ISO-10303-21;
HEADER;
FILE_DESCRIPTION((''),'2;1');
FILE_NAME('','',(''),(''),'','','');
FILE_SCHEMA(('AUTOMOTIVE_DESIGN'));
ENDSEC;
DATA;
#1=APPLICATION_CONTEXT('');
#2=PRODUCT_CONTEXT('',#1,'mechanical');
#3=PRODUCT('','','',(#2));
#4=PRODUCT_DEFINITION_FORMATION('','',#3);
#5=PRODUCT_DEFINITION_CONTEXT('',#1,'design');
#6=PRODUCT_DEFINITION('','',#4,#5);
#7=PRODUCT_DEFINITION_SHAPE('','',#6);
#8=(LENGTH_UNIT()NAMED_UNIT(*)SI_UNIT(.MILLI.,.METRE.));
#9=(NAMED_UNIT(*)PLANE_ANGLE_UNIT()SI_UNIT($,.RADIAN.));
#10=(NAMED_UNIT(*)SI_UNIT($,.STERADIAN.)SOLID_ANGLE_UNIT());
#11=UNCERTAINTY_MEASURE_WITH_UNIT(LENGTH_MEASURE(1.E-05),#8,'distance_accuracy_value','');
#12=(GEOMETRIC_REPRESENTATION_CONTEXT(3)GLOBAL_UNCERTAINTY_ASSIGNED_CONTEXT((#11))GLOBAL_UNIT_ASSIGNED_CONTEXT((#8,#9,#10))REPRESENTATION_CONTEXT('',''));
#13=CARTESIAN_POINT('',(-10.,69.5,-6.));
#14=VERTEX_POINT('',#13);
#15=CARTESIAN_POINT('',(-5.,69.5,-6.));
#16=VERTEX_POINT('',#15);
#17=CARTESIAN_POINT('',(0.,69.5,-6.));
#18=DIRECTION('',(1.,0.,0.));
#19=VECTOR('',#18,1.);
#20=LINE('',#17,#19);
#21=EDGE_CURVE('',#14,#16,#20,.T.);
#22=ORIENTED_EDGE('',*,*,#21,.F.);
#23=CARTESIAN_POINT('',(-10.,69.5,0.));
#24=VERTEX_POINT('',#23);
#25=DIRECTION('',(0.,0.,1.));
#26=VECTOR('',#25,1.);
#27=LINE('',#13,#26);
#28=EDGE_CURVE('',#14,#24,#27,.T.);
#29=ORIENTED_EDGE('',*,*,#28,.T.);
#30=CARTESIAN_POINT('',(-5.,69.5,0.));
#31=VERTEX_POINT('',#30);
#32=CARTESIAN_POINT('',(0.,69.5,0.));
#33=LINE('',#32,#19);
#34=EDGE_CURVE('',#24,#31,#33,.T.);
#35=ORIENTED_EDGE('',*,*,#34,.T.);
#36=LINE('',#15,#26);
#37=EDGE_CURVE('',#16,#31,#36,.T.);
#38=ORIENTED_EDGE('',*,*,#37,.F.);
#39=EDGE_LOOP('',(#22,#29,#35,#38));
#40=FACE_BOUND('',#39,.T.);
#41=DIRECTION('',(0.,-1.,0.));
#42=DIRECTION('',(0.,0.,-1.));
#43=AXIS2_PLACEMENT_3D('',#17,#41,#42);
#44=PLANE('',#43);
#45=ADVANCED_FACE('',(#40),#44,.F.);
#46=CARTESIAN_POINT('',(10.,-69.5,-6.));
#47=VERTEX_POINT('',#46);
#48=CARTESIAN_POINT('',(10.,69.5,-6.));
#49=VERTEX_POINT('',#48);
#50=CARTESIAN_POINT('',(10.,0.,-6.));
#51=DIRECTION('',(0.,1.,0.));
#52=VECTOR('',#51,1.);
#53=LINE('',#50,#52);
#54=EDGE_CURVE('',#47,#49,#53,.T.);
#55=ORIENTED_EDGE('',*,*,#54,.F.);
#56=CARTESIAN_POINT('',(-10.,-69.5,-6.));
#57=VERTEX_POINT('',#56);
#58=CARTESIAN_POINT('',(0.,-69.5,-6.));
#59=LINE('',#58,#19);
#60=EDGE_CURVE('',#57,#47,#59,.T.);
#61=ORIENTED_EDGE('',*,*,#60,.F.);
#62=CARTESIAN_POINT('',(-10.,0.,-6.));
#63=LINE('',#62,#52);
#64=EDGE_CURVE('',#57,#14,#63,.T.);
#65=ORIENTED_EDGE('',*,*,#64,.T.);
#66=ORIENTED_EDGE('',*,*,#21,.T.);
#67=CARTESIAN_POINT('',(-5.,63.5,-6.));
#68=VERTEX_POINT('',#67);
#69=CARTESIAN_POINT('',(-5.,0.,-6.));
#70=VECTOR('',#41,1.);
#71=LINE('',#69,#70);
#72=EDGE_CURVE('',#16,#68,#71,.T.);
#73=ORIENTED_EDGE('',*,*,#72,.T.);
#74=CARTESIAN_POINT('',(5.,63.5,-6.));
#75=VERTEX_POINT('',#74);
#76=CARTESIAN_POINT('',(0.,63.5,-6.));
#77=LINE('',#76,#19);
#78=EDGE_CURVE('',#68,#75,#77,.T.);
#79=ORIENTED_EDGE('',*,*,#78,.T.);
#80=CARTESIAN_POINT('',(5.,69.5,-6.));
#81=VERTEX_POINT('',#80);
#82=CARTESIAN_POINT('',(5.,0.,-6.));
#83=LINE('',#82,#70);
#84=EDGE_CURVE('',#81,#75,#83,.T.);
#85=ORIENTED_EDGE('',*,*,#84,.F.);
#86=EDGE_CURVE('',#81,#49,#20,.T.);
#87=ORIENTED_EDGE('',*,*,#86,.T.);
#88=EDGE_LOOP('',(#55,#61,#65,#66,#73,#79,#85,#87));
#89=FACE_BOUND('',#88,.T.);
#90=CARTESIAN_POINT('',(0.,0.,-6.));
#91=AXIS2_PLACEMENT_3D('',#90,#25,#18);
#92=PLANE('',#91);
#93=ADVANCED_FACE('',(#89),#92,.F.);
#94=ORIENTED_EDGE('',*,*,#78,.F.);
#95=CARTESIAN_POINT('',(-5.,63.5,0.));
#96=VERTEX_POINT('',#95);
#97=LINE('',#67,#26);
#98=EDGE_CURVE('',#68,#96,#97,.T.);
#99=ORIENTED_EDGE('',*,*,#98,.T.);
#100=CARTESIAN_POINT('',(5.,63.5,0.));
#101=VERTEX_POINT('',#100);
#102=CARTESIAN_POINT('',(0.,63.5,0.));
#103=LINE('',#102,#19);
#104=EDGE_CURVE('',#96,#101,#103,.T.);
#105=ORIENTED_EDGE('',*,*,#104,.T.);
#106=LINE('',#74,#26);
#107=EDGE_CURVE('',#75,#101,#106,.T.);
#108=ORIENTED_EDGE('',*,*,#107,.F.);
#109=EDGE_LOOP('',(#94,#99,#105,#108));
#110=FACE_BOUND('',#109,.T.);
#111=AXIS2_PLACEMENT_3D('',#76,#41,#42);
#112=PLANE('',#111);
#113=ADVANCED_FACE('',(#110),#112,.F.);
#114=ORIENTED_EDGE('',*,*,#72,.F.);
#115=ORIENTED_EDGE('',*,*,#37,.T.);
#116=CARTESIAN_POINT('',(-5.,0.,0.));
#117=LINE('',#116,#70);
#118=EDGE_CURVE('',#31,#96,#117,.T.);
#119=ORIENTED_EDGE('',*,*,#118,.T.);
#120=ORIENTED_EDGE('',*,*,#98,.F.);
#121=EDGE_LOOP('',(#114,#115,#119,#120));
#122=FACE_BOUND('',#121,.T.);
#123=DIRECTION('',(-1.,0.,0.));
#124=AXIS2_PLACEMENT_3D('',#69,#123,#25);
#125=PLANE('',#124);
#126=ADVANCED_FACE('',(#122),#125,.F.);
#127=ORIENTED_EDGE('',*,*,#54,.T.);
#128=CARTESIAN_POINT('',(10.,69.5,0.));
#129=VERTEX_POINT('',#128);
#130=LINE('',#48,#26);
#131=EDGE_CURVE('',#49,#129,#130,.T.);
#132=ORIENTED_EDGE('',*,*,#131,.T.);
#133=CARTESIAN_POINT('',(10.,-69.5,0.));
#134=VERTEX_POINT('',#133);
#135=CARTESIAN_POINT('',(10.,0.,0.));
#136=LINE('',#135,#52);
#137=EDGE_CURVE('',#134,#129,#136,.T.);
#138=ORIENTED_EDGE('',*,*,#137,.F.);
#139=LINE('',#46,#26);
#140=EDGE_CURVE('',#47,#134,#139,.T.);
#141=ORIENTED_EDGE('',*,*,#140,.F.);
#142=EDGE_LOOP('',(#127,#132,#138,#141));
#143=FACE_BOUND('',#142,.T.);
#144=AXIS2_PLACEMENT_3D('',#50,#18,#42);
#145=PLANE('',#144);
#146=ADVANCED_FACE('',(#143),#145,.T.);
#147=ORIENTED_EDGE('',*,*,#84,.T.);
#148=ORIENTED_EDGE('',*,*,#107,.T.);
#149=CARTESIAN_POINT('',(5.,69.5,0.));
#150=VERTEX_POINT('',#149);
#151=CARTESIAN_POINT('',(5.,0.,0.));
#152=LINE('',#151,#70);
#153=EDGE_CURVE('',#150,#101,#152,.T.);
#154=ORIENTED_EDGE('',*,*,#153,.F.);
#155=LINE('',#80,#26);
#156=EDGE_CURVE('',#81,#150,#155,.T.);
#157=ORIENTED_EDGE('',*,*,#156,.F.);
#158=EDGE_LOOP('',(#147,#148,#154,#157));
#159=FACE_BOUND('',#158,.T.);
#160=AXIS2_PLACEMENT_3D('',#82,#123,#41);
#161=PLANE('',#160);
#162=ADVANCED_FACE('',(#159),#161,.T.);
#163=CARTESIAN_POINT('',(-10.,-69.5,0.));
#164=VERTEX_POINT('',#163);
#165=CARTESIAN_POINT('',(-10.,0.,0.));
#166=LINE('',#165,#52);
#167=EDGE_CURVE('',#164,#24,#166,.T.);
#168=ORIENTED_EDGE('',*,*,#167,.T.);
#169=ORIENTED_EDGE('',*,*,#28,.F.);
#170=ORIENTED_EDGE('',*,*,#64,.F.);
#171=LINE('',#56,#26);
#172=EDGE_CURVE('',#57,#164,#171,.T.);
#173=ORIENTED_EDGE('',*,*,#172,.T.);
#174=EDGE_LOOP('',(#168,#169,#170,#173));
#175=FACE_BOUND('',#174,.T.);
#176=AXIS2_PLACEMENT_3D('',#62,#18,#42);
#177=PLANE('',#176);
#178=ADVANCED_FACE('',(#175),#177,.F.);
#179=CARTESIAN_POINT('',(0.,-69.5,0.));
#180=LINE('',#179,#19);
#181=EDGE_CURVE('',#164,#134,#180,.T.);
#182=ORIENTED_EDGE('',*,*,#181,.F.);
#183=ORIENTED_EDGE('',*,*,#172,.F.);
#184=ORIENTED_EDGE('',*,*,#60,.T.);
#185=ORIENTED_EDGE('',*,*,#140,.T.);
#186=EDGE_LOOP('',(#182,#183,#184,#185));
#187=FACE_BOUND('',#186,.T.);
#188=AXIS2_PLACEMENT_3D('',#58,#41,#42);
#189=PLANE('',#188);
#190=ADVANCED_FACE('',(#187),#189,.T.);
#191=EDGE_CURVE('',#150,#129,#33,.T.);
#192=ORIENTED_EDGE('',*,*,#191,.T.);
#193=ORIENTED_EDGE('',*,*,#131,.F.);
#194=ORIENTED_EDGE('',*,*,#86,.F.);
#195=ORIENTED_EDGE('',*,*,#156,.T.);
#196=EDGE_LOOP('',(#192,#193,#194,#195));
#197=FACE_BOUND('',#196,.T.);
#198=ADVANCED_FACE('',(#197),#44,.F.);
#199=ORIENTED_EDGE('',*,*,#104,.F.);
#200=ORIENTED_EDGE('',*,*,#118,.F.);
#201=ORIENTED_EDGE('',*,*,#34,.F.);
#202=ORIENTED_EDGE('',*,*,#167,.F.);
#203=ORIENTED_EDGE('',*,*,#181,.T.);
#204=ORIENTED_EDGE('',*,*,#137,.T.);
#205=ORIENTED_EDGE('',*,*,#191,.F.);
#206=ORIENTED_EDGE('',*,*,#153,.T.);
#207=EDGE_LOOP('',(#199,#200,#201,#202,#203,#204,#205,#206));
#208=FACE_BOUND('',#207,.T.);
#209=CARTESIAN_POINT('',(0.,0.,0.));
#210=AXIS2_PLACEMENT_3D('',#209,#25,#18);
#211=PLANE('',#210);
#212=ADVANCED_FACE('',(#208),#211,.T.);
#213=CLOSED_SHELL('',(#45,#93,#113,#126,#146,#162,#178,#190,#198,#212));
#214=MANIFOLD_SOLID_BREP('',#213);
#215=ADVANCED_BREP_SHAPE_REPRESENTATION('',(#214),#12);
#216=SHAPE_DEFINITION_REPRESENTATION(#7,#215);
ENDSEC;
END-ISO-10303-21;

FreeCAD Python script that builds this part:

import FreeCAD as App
import Part
import Sketcher

V = App.Vector

doc = App.newDocument("Part")
body = doc.addObject("PartDesign::Body", "Body")

# Sketch on XY plane
sketch1 = doc.addObject("Sketcher::SketchObject", "Sketch")
body.addObject(sketch1)
sketch1.AttachmentSupport = (doc.XY_Plane, [""])
sketch1.MapMode = "FlatFace"
sketch1.addGeometry([
    Part.LineSegment(V(-10, -70, 0), V(10, -70, 0)),  # 0
    Part.LineSegment(V(10, -70, 0), V(10, 70, 0)),  # 1
    Part.LineSegment(V(10, 70, 0), V(5, 70, 0)),  # 2
    Part.LineSegment(V(5, 70, 0), V(5, 64, 0)),  # 3
    Part.LineSegment(V(5, 64, 0), V(-5, 64, 0)),  # 4
    Part.LineSegment(V(-5, 64, 0), V(-5, 70, 0)),  # 5
    Part.LineSegment(V(-5, 70, 0), V(-10, 70, 0)),  # 6
    Part.LineSegment(V(-10, 70, 0), V(-10, -70, 0)),  # 7
], False)
sketch1.addConstraint([
    Sketcher.Constraint("Coincident", 0, 2, 1, 1),
    Sketcher.Constraint("Coincident", 1, 2, 2, 1),
    Sketcher.Constraint("Coincident", 2, 2, 3, 1),
    Sketcher.Constraint("Coincident", 3, 2, 4, 1),
    Sketcher.Constraint("Coincident", 4, 2, 5, 1),
    Sketcher.Constraint("Coincident", 5, 2, 6, 1),
    Sketcher.Constraint("Coincident", 6, 2, 7, 1),
    Sketcher.Constraint("Coincident", 7, 2, 0, 1),
    Sketcher.Constraint("Horizontal", 0),
    Sketcher.Constraint("Vertical", 1),
    Sketcher.Constraint("Horizontal", 2),
    Sketcher.Constraint("Vertical", 3),
    Sketcher.Constraint("Horizontal", 4),
    Sketcher.Constraint("Vertical", 5),
    Sketcher.Constraint("Horizontal", 6),
    Sketcher.Constraint("Vertical", 7),
    Sketcher.Constraint("Symmetric", 0, 2, 6, 2, -1, 1),
    Sketcher.Constraint("Symmetric", 2, 2, 5, 2, -2),
    Sketcher.Constraint("DistanceX", 0, 1, 0, 2, 20.0),
    Sketcher.Constraint("DistanceX", 2, 2, 2, 1, 5.0),
    Sketcher.Constraint("DistanceY", 1, 1, 1, 2, 139.0),
    Sketcher.Constraint("DistanceY", 3, 2, 3, 1, 6.0),
])
pad1 = doc.addObject("PartDesign::Pad", "Pad")
body.addObject(pad1)
pad1.Profile = sketch1
pad1.Length = 6
pad1.Reversed = True

doc.recompute()
